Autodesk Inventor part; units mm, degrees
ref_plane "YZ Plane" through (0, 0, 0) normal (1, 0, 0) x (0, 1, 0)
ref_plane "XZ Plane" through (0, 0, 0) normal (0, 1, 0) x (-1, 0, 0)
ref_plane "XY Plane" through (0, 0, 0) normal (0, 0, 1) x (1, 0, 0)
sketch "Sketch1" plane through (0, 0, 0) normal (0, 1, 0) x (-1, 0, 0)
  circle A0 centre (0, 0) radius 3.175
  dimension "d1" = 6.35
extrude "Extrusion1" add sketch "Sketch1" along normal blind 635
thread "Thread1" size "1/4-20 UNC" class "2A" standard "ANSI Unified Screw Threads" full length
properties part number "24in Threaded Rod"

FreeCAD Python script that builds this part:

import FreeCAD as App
import Part
import Sketcher
from FreeCAD import Vector
Q = App.Units.Quantity

doc = App.newDocument("Part")
params = doc.addObject("Spreadsheet::Sheet", "Params")
for row, (alias, value) in enumerate([
    ("sketch1_diameter", "0.25 in"),
    ("pad1_length", "25 in"),
], start=1):
    params.set(f"A{row}", alias)
    params.set(f"B{row}", "=" + value)
    params.setAlias(f"B{row}", alias)

body = doc.addObject("PartDesign::Body", "Body")

sketch1 = body.newObject("Sketcher::SketchObject", "Sketch")
sketch1.AttachmentSupport = (doc.getObject("XZ_Plane"), [""])
sketch1.MapMode = "FlatFace"
sketch1.addGeometry(Part.Circle(Vector(0, 0, 0), Vector(0, 0, 1), 3.2), False)
sketch1.addConstraint([
    Sketcher.Constraint("Coincident", 0, 3, -1, 1),
    Sketcher.Constraint("Diameter", 0, Q("0.25 in")),
])
sketch1.setExpression("Constraints[1]", "Params.sketch1_diameter")
pad1 = body.newObject("PartDesign::Pad", "Pad")
pad1.Profile = sketch1
pad1.setExpression("Length", "Params.pad1_length")
pad1.Reversed = True

doc.recompute()
